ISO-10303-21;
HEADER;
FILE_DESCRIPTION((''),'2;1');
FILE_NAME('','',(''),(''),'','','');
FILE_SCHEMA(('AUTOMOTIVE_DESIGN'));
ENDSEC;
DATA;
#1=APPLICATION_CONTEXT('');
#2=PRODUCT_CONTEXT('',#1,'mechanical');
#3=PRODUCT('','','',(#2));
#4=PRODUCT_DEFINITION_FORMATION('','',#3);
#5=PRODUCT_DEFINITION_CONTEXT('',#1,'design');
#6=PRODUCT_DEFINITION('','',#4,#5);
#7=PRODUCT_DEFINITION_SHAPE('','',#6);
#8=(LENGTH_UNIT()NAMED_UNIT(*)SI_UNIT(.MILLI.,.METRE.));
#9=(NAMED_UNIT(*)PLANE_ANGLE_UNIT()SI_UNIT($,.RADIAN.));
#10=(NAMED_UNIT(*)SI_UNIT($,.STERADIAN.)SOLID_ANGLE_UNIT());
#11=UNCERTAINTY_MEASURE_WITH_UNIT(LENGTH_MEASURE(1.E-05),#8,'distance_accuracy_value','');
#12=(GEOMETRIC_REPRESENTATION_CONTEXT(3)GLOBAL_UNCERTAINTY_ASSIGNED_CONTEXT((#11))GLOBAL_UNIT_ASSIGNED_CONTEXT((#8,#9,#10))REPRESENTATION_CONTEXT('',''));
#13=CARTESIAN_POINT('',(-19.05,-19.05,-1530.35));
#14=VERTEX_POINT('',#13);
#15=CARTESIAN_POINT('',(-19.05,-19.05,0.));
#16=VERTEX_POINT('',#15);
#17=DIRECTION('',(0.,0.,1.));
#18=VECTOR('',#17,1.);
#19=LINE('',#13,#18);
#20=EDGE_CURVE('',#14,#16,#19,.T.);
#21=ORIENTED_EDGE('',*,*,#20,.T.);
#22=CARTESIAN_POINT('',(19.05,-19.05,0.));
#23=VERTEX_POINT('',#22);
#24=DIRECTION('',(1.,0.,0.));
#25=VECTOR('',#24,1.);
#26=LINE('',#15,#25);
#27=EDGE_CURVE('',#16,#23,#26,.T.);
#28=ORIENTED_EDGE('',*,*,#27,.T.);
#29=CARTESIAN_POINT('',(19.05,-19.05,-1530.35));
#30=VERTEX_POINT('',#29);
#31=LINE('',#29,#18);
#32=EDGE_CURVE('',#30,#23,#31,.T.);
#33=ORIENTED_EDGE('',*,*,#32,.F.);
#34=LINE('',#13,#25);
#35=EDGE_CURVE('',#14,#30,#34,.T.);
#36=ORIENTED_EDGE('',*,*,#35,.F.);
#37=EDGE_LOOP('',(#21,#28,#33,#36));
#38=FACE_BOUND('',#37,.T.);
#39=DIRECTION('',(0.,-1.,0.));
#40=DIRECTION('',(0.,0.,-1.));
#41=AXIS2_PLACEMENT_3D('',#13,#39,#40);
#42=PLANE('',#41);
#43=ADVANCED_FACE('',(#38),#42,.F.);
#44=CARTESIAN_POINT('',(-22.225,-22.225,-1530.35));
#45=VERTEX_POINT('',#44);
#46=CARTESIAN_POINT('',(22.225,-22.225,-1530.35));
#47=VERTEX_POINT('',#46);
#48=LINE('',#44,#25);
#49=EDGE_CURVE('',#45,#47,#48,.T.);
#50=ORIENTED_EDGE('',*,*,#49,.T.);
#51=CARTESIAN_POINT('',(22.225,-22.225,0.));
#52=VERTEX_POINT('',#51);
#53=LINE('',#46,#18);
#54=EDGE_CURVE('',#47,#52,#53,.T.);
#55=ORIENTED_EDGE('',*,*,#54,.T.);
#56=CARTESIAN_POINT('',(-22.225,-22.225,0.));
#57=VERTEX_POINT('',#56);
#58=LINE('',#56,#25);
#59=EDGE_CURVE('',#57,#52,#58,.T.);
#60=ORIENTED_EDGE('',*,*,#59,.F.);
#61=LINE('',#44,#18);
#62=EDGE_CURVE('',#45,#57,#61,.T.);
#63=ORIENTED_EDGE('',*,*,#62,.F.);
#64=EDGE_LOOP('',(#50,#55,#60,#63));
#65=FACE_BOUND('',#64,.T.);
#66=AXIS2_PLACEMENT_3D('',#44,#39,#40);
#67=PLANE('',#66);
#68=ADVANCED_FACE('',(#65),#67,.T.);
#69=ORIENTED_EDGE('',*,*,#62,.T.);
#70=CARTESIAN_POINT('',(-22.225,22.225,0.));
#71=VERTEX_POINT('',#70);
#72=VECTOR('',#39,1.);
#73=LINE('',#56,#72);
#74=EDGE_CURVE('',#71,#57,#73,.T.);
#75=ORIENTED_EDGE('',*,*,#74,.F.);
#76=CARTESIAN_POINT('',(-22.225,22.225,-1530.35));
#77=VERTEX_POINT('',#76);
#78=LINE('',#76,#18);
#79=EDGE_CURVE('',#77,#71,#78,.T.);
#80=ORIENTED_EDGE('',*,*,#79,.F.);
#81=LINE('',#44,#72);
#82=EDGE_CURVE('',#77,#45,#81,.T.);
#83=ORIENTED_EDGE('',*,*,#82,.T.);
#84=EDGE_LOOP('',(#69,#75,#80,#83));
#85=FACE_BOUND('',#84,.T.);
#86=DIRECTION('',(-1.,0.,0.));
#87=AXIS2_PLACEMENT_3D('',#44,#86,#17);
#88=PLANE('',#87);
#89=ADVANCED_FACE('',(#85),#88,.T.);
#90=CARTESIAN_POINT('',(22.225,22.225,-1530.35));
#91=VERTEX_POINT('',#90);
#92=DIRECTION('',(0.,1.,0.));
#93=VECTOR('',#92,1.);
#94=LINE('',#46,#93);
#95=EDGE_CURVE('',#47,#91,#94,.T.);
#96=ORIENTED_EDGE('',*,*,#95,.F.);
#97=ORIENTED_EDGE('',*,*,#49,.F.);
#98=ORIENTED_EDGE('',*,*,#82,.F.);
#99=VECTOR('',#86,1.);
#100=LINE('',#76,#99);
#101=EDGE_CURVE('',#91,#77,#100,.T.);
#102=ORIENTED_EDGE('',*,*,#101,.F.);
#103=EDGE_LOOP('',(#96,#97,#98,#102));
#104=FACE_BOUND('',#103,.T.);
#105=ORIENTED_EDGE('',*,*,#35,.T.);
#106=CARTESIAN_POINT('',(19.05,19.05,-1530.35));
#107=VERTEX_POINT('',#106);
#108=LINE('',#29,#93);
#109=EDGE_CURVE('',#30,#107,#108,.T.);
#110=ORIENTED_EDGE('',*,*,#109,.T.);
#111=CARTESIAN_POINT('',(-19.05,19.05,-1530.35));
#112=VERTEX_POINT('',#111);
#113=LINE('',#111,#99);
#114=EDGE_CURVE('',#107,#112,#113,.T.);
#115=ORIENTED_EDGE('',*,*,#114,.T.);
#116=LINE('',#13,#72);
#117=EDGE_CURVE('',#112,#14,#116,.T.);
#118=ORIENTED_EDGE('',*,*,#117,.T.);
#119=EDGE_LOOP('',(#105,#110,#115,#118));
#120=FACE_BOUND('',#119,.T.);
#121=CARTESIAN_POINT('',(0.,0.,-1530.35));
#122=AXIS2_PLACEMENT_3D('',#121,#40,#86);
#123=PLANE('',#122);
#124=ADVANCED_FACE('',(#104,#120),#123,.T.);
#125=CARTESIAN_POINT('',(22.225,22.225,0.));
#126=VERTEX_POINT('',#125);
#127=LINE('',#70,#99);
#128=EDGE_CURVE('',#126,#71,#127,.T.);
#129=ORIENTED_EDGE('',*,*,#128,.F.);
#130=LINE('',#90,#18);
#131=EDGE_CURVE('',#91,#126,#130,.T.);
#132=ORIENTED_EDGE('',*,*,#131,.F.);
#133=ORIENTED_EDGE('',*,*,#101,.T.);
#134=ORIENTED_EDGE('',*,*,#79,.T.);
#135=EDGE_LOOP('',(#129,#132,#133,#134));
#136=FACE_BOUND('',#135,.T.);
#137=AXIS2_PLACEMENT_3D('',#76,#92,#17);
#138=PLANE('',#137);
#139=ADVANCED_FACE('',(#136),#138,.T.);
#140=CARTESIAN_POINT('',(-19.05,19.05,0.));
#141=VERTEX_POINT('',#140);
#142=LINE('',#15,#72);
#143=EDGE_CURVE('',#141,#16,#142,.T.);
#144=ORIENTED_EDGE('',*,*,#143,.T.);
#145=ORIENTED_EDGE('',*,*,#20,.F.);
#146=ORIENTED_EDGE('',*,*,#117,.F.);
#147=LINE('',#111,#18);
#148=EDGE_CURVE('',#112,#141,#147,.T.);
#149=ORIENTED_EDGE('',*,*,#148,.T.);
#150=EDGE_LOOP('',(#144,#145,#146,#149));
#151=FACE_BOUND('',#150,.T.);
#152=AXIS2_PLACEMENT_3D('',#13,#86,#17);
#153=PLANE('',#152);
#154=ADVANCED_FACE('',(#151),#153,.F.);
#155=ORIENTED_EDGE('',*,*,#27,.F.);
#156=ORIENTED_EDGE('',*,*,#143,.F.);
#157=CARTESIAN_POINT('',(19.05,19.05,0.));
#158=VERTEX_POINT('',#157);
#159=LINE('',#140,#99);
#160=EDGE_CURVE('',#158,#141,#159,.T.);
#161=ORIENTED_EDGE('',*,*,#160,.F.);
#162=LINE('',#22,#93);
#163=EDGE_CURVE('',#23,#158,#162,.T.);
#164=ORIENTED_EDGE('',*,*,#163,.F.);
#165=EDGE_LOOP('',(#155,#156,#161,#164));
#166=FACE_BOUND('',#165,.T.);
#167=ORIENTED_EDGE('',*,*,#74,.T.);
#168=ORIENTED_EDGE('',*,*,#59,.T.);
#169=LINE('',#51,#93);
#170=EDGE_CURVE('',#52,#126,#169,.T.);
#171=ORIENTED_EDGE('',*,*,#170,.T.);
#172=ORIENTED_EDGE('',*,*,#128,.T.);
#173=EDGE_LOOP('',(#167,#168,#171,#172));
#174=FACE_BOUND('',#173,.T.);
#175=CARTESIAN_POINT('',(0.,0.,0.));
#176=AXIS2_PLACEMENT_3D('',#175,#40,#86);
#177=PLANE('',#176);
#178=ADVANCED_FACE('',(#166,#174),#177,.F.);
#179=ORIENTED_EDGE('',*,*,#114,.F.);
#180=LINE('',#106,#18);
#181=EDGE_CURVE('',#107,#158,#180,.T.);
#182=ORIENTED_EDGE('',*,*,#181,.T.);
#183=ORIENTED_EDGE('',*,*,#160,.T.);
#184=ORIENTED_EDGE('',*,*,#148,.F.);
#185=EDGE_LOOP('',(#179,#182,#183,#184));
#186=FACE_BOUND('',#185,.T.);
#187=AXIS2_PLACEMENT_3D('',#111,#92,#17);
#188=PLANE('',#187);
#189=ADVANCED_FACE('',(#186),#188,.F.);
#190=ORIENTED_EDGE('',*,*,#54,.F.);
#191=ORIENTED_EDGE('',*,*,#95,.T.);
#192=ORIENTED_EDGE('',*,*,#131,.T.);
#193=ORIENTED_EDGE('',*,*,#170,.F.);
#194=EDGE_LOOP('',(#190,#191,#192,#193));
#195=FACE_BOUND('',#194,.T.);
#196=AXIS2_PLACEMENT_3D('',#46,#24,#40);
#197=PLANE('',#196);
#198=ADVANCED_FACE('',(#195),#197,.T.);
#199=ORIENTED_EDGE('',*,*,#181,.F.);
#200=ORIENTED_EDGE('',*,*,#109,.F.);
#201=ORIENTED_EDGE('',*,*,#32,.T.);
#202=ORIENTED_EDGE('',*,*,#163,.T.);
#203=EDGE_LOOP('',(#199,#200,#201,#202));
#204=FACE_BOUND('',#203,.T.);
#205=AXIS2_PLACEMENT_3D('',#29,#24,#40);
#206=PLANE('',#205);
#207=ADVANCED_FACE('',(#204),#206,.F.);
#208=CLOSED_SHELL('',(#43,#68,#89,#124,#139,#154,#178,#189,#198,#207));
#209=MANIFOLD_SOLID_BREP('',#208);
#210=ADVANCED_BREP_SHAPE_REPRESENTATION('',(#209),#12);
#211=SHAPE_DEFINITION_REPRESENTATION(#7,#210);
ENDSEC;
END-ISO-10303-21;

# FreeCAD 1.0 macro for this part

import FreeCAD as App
import Part
import Sketcher
Q = App.Units.Quantity


def add_polygon(sketch, points):
    """Adds a closed chain of lines whose ends are joined by coincident constraints."""
    first, n = sketch.GeometryCount, len(points)
    for a, b in zip(points, points[1:] + points[:1]):
        sketch.addGeometry(Part.LineSegment(App.Vector(*a, 0), App.Vector(*b, 0)), False)
    for i in range(n):
        sketch.addConstraint(Sketcher.Constraint("Coincident", first + i, 2, first + (i + 1) % n, 1))

doc = App.newDocument("Part")
params = doc.addObject("Spreadsheet::Sheet", "Params")
for row, (alias, value) in enumerate([
    ("sketch1_width", "1.5 in"),
    ("sketch1_width2", "1.75 in"),
    ("pad1_length", "60.25 in"),
], start=1):
    params.set(f"A{row}", alias)
    params.set(f"B{row}", "=" + value)
    params.setAlias(f"B{row}", alias)

body = doc.addObject("PartDesign::Body", "Body")

sketch1 = body.newObject("Sketcher::SketchObject", "Sketch")
sketch1.AttachmentSupport = (doc.getObject("XY_Plane"), [""])
sketch1.MapMode = "FlatFace"
add_polygon(sketch1, [(-22.225, 22.225), (-22.225, -22.225), (22.225, -22.225), (22.225, 22.225)])
add_polygon(sketch1, [(19.05, -19.05), (-19.05, -19.05), (-19.05, 19.05), (19.05, 19.05)])
sketch1.addConstraint([
    Sketcher.Constraint("Vertical", 0),
    Sketcher.Constraint("Horizontal", 1),
    Sketcher.Constraint("Vertical", 2),
    Sketcher.Constraint("Horizontal", 3),
    Sketcher.Constraint("Horizontal", 4),
    Sketcher.Constraint("Vertical", 5),
    Sketcher.Constraint("Horizontal", 6),
    Sketcher.Constraint("Vertical", 7),
    Sketcher.Constraint("Symmetric", 0, 2, 2, 2, -1, 1),
    Sketcher.Constraint("Symmetric", 4, 2, 6, 2, -1, 1),
    Sketcher.Constraint("Equal", 3, 0),
    Sketcher.Constraint("Equal", 6, 5),
    Sketcher.Constraint("DistanceX", 4, 2, 4, 1, Q("1.5 in")),
    Sketcher.Constraint("DistanceX", 1, 1, 1, 2, Q("1.75 in")),
])
sketch1.setExpression("Constraints[20]", "Params.sketch1_width")
sketch1.setExpression("Constraints[21]", "Params.sketch1_width2")
pad1 = body.newObject("PartDesign::Pad", "Pad")
pad1.Profile = sketch1
pad1.setExpression("Length", "Params.pad1_length")
pad1.Reversed = True

doc.recompute()
